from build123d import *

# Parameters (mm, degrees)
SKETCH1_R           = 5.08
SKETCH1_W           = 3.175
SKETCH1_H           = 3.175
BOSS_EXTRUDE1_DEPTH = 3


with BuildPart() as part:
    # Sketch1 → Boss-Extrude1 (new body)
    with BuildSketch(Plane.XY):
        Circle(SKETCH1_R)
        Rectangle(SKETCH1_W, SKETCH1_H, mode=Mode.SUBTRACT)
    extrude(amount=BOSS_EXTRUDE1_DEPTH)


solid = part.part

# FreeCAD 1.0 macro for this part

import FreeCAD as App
import Part
import Sketcher
from FreeCAD import Vector
Q = App.Units.Quantity

doc = App.newDocument("Part")
body = doc.addObject("PartDesign::Body", "Body")

# Sketch on XY plane
sketch1 = body.newObject("Sketcher::SketchObject", "Sketch")
sketch1.AttachmentSupport = (doc.getObject("XY_Plane"), [""])
sketch1.MapMode = "FlatFace"
sketch1.addGeometry(Part.Circle(Vector(0, 0, 0), Vector(0, 0, 1), 5.1), False)
sketch1.addGeometry(Part.LineSegment(Vector(1.6, -1.6, 0), Vector(-1.6, -1.6, 0)), False)
sketch1.addGeometry(Part.LineSegment(Vector(-1.6, -1.6, 0), Vector(-1.6, 1.6, 0)), False)
sketch1.addGeometry(Part.LineSegment(Vector(-1.6, 1.6, 0), Vector(1.6, 1.6, 0)), False)
sketch1.addGeometry(Part.LineSegment(Vector(1.6, 1.6, 0), Vector(1.6, -1.6, 0)), False)
sketch1.addConstraint(Sketcher.Constraint("Coincident", 1, 2, 2, 1))
sketch1.addConstraint(Sketcher.Constraint("Coincident", 2, 2, 3, 1))
sketch1.addConstraint(Sketcher.Constraint("Coincident", 3, 2, 4, 1))
sketch1.addConstraint(Sketcher.Constraint("Coincident", 4, 2, 1, 1))
sketch1.addConstraint(Sketcher.Constraint("Horizontal", 1))
sketch1.addConstraint(Sketcher.Constraint("Vertical", 2))
sketch1.addConstraint(Sketcher.Constraint("Horizontal", 3))
sketch1.addConstraint(Sketcher.Constraint("Vertical", 4))
sketch1.addConstraint(Sketcher.Constraint("Coincident", 0, 3, -1, 1))
sketch1.addConstraint(Sketcher.Constraint("Symmetric", 1, 2, 3, 2, -1, 1))
sketch1.addConstraint(Sketcher.Constraint("Equal", 3, 2))
sketch1.addConstraint(Sketcher.Constraint("Diameter", 0, Q("0.4 in")))
sketch1.addConstraint(Sketcher.Constraint("DistanceX", 1, 2, 1, 1, Q("0.125 in")))
pad1 = body.newObject("PartDesign::Pad", "Pad")
pad1.Profile = sketch1
pad1.Length = 3

doc.recompute()
